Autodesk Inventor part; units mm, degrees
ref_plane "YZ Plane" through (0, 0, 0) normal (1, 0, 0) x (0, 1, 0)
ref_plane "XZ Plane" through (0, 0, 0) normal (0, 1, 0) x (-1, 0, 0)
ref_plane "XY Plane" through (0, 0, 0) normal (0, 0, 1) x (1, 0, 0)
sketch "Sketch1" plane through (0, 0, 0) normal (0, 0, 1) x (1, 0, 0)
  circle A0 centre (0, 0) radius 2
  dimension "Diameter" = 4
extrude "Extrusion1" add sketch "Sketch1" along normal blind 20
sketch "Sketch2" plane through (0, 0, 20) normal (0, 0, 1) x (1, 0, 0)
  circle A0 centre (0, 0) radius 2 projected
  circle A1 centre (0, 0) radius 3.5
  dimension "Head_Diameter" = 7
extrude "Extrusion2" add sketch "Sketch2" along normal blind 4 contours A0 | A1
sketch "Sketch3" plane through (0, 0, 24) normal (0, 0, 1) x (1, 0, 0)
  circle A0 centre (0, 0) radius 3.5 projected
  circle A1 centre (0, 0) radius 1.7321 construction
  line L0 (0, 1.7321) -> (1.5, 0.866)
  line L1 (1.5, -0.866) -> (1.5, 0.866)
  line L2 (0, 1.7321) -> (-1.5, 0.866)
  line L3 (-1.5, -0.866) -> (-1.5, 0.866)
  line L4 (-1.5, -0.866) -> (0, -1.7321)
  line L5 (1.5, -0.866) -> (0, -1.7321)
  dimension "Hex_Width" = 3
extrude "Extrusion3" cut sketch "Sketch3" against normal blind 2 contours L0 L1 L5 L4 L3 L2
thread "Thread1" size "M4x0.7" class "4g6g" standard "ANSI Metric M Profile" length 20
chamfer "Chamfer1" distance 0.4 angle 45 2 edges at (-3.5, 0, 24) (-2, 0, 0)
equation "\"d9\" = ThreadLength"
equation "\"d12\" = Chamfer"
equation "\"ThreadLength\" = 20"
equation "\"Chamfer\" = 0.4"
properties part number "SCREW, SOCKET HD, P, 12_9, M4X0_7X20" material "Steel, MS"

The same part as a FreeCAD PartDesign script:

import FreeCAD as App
import Part
import Sketcher


def edges_at(feature, points):
    """Names of the edges that pass closest to the given points."""
    edges = feature.Shape.Edges
    near = lambda p: min(range(len(edges)), key=lambda i: edges[i].distToShape(Part.Vertex(*p))[0])
    return sorted({f"Edge{near(p) + 1}" for p in points})


def add_polygon(sketch, points):
    """Adds a closed chain of lines whose ends are joined by coincident constraints."""
    first, n = sketch.GeometryCount, len(points)
    for a, b in zip(points, points[1:] + points[:1]):
        sketch.addGeometry(Part.LineSegment(App.Vector(*a, 0), App.Vector(*b, 0)), False)
    for i in range(n):
        sketch.addConstraint(Sketcher.Constraint("Coincident", first + i, 2, first + (i + 1) % n, 1))

doc = App.newDocument("Part")
body = doc.addObject("PartDesign::Body", "Body")

# Sketch on XY plane
sketch1 = doc.addObject("Sketcher::SketchObject", "Sketch")
body.addObject(sketch1)
sketch1.AttachmentSupport = (doc.XY_Plane, [""])
sketch1.MapMode = "FlatFace"
sketch1.addGeometry(Part.Circle(App.Vector(0, 0, 0), App.Vector(0, 0, 1), 2), False)
sketch1.addConstraint(Sketcher.Constraint("Coincident", 0, 3, -1, 1))
sketch1.addConstraint(Sketcher.Constraint("Diameter", 0, 4.0))
pad1 = doc.addObject("PartDesign::Pad", "Pad")
body.addObject(pad1)
pad1.Profile = sketch1
pad1.Length = 20

# Sketch on XY plane
sketch2 = doc.addObject("Sketcher::SketchObject", "Sketch001")
body.addObject(sketch2)
sketch2.AttachmentSupport = (doc.XY_Plane, [""])
sketch2.MapMode = "FlatFace"
sketch2.AttachmentOffset = App.Placement(App.Vector(0, 0, 20), App.Rotation())
sketch2.addGeometry(Part.Circle(App.Vector(0, 0, 0), App.Vector(0, 0, 1), 3.5), False)
sketch2.addConstraint(Sketcher.Constraint("Coincident", 0, 3, -1, 1))
sketch2.addConstraint(Sketcher.Constraint("Diameter", 0, 7.0))
pad2 = doc.addObject("PartDesign::Pad", "Pad001")
body.addObject(pad2)
pad2.Profile = sketch2
pad2.Length = 4

# Sketch on XY plane
sketch3 = doc.addObject("Sketcher::SketchObject", "Sketch002")
body.addObject(sketch3)
sketch3.AttachmentSupport = (doc.XY_Plane, [""])
sketch3.MapMode = "FlatFace"
sketch3.AttachmentOffset = App.Placement(App.Vector(0, 0, 24), App.Rotation())
add_polygon(sketch3, [(1.5, 0.866), (0, 1.7321), (-1.5, 0.866), (-1.5, -0.866), (0, -1.7321), (1.5, -0.866)])  # lines 0-5
sketch3.addConstraint(Sketcher.Constraint("Vertical", 2))
sketch3.addConstraint(Sketcher.Constraint("Vertical", 5))
sketch3.addConstraint(Sketcher.Constraint("Symmetric", 0, 2, 3, 2, -1, 1))
sketch3.addConstraint(Sketcher.Constraint("Symmetric", 1, 2, 4, 2, -1, 1))
sketch3.addConstraint(Sketcher.Constraint("PointOnObject", 0, 2, -2))
sketch3.addConstraint(Sketcher.Constraint("Parallel", 0, 3))
sketch3.addConstraint(Sketcher.Constraint("Horizontal", 2, 2, 4, 2))
sketch3.addConstraint(Sketcher.Constraint("DistanceX", 2, 2, 4, 2, 3.0))
sketch3.addConstraint(Sketcher.Constraint("DistanceY", 2, 2, 2, 1, 1.732))
sketch3.addConstraint(Sketcher.Constraint("Distance", 0, 1.732))
pocket1 = doc.addObject("PartDesign::Pocket", "Pocket")
body.addObject(pocket1)
pocket1.Profile = sketch3
pocket1.Length = 2
doc.recompute()

chamfer = doc.addObject("PartDesign::Chamfer", "Chamfer")
body.addObject(chamfer)
chamfer.Base = (pocket1, edges_at(pocket1, [(-3.5, 0, 24), (-2, 0, 0)]))
chamfer.Size = 0.4

doc.recompute()
